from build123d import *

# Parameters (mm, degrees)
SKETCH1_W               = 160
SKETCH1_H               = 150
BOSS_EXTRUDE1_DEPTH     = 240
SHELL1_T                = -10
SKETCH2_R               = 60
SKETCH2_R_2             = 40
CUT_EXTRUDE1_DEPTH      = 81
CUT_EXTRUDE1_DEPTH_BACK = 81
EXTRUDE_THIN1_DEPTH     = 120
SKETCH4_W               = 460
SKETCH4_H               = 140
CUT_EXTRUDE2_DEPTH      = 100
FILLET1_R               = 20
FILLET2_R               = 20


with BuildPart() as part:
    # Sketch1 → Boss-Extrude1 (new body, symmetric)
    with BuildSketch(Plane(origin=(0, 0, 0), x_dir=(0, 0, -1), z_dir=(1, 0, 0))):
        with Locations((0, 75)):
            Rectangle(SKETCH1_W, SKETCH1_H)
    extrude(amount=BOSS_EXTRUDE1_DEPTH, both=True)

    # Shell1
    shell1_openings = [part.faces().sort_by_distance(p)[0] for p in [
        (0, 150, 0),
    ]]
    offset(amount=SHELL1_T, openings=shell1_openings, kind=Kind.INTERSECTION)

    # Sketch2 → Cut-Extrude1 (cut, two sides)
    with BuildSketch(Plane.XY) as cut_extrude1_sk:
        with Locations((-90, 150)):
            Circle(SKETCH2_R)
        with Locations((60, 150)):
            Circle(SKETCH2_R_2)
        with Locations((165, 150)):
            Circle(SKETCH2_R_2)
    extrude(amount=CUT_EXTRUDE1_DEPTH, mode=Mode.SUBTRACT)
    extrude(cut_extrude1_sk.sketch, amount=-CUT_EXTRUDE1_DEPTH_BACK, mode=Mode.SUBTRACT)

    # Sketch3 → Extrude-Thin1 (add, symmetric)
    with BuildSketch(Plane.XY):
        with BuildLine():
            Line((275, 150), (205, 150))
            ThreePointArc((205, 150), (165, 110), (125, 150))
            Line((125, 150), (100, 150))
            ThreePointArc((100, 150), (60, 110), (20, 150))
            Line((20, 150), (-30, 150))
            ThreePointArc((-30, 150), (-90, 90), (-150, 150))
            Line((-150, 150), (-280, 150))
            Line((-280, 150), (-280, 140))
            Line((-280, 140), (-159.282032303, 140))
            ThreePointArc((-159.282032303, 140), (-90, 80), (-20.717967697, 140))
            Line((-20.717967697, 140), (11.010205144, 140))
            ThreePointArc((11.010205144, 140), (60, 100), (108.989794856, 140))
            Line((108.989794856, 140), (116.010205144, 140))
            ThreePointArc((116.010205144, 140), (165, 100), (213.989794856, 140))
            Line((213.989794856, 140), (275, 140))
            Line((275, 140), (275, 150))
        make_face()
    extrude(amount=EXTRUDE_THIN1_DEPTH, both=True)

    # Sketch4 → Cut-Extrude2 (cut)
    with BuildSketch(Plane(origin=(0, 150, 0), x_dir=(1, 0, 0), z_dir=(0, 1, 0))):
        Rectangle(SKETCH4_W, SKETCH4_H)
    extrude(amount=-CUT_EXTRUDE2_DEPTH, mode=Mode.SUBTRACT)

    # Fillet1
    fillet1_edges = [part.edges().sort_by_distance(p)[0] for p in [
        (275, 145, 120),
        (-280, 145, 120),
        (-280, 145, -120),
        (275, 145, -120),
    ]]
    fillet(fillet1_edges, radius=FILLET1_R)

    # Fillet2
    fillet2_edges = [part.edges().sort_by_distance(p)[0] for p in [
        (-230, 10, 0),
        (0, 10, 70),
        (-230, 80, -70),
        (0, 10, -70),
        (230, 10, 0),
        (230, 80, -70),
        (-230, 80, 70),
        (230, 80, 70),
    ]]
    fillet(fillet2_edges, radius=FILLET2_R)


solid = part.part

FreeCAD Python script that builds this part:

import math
import FreeCAD as App
import Part
import Sketcher
from FreeCAD import Vector
Q = App.Units.Quantity


def edges_at(feature, points):
    """Names of the edges that pass closest to the given points."""
    edges = feature.Shape.Edges
    near = lambda p: min(range(len(edges)), key=lambda i: edges[i].distToShape(Part.Vertex(*p))[0])
    return sorted({f"Edge{near(p) + 1}" for p in points})


def faces_at(feature, points):
    """Names of the faces that lie closest to the given points."""
    faces = feature.Shape.Faces
    near = lambda p: min(range(len(faces)), key=lambda i: faces[i].distToShape(Part.Vertex(*p))[0])
    return sorted({f"Face{near(p) + 1}" for p in points})

doc = App.newDocument("Part")
body = doc.addObject("PartDesign::Body", "Body")

# Sketch on YZ plane
sketch1 = body.newObject("Sketcher::SketchObject", "Sketch")
sketch1.AttachmentSupport = (doc.getObject("YZ_Plane"), [""])
sketch1.MapMode = "FlatFace"
sketch1.addGeometry([
    Part.LineSegment(Vector(150, 80, 0), Vector(0, 80, 0)),
    Part.LineSegment(Vector(0, 80, 0), Vector(0, -80, 0)),
    Part.LineSegment(Vector(0, -80, 0), Vector(150, -80, 0)),
    Part.LineSegment(Vector(150, -80, 0), Vector(150, 80, 0)),
], False)
sketch1.addConstraint([
    Sketcher.Constraint("Coincident", 0, 2, 1, 1),
    Sketcher.Constraint("Coincident", 1, 2, 2, 1),
    Sketcher.Constraint("Coincident", 2, 2, 3, 1),
    Sketcher.Constraint("Coincident", 3, 2, 0, 1),
    Sketcher.Constraint("Horizontal", 0),
    Sketcher.Constraint("Vertical", 1),
    Sketcher.Constraint("Horizontal", 2),
    Sketcher.Constraint("Vertical", 3),
    Sketcher.Constraint("Symmetric", 0, 2, 1, 2, -1, 1),
    Sketcher.Constraint("DistanceX", 0, 2, 0, 1, Q("150 mm")),
    Sketcher.Constraint("DistanceY", 1, 2, 1, 1, Q("160 mm")),
])
pad1 = body.newObject("PartDesign::Pad", "Pad")
pad1.Profile = sketch1
pad1.Length = 480
pad1.Midplane = True
doc.recompute()

thickness = body.newObject("PartDesign::Thickness", "Thickness")
thickness.Base = (pad1, faces_at(pad1, [(0, 150, 0)]))
thickness.Value = 10
thickness.Reversed = True
thickness.Join = "Intersection"

# Sketch on XY plane
sketch2 = body.newObject("Sketcher::SketchObject", "Sketch001")
sketch2.AttachmentSupport = (doc.getObject("XY_Plane"), [""])
sketch2.MapMode = "FlatFace"
sketch2.addGeometry([
    Part.Circle(Vector(-90, 150, 0), Vector(0, 0, 1), 60),
    Part.Circle(Vector(60, 150, 0), Vector(0, 0, 1), 40),
    Part.Circle(Vector(165, 150, 0), Vector(0, 0, 1), 40),
], False)
sketch2.addConstraint([
    Sketcher.Constraint("Equal", 1, 2),
    Sketcher.Constraint("Horizontal", 0, 3, 1, 3),
    Sketcher.Constraint("Horizontal", 1, 3, 2, 3),
    Sketcher.Constraint("Diameter", 0, Q("120 mm")),
    Sketcher.Constraint("Diameter", 1, Q("80 mm")),
    Sketcher.Constraint("DistanceX", 0, 3, -1, 1, Q("90 mm")),
    Sketcher.Constraint("DistanceY", -1, 1, 0, 3, Q("150 mm")),
    Sketcher.Constraint("DistanceX", -1, 1, 1, 3, Q("60 mm")),
    Sketcher.Constraint("DistanceX", -1, 1, 2, 3, Q("165 mm")),
])
pocket1 = body.newObject("PartDesign::Pocket", "Pocket")
pocket1.Profile = sketch2
pocket1.Type = "ThroughAll"
pocket1.Midplane = True

# Sketch on XY plane
sketch3 = body.newObject("Sketcher::SketchObject", "Sketch002")
sketch3.AttachmentSupport = (doc.getObject("XY_Plane"), [""])
sketch3.MapMode = "FlatFace"
sketch3.addGeometry([
    Part.LineSegment(Vector(275, 150, 0), Vector(205, 150, 0)),  # 0
    Part.ArcOfCircle(Part.Circle(Vector(165, 150, 0), Vector(0, 0, 1), 40), math.radians(180), math.radians(360)),  # 1
    Part.LineSegment(Vector(125, 150, 0), Vector(100, 150, 0)),  # 2
    Part.ArcOfCircle(Part.Circle(Vector(60, 150, 0), Vector(0, 0, 1), 40), math.radians(180), math.radians(360)),  # 3
    Part.LineSegment(Vector(20, 150, 0), Vector(-30, 150, 0)),  # 4
    Part.ArcOfCircle(Part.Circle(Vector(-90, 150, 0), Vector(0, 0, 1), 60), math.radians(180), math.radians(360)),  # 5
    Part.LineSegment(Vector(-150, 150, 0), Vector(-280, 150, 0)),  # 6
    Part.LineSegment(Vector(-280, 150, 0), Vector(-280, 140, 0)),  # 7
    Part.LineSegment(Vector(-280, 140, 0), Vector(-159.282032, 140, 0)),  # 8
    Part.ArcOfCircle(Part.Circle(Vector(-90, 150, 0), Vector(0, 0, 1), 70), math.radians(-171.786789), math.radians(-8.213211)),  # 9
    Part.LineSegment(Vector(-20.717968, 140, 0), Vector(11.010205, 140, 0)),  # 10
    Part.ArcOfCircle(Part.Circle(Vector(60, 150, 0), Vector(0, 0, 1), 50), math.radians(-168.463041), math.radians(-11.536959)),  # 11
    Part.LineSegment(Vector(108.989795, 140, 0), Vector(116.010205, 140, 0)),  # 12
    Part.ArcOfCircle(Part.Circle(Vector(165, 150, 0), Vector(0, 0, 1), 50), math.radians(-168.463041), math.radians(-11.536959)),  # 13
    Part.LineSegment(Vector(213.989795, 140, 0), Vector(275, 140, 0)),  # 14
    Part.LineSegment(Vector(275, 140, 0), Vector(275, 150, 0)),  # 15
], False)
sketch3.addConstraint([
    Sketcher.Constraint("Coincident", 0, 2, 1, 2),
    Sketcher.Constraint("Coincident", 1, 1, 2, 1),
    Sketcher.Constraint("Coincident", 2, 2, 3, 2),
    Sketcher.Constraint("Coincident", 3, 1, 4, 1),
    Sketcher.Constraint("Coincident", 4, 2, 5, 2),
    Sketcher.Constraint("Coincident", 5, 1, 6, 1),
    Sketcher.Constraint("Coincident", 6, 2, 7, 1),
    Sketcher.Constraint("Coincident", 7, 2, 8, 1),
    Sketcher.Constraint("Coincident", 8, 2, 9, 1),
    Sketcher.Constraint("Coincident", 9, 2, 10, 1),
    Sketcher.Constraint("Coincident", 10, 2, 11, 1),
    Sketcher.Constraint("Coincident", 11, 2, 12, 1),
    Sketcher.Constraint("Coincident", 12, 2, 13, 1),
    Sketcher.Constraint("Coincident", 13, 2, 14, 1),
    Sketcher.Constraint("Coincident", 14, 2, 15, 1),
    Sketcher.Constraint("Coincident", 15, 2, 0, 1),
    Sketcher.Constraint("Horizontal", 0),
    Sketcher.Constraint("Horizontal", 2),
    Sketcher.Constraint("Horizontal", 4),
    Sketcher.Constraint("Horizontal", 6),
    Sketcher.Constraint("Vertical", 7),
    Sketcher.Constraint("Horizontal", 8),
    Sketcher.Constraint("Horizontal", 10),
    Sketcher.Constraint("Horizontal", 12),
    Sketcher.Constraint("Horizontal", 14),
    Sketcher.Constraint("Vertical", 15),
    Sketcher.Constraint("Coincident", 9, 3, 5, 3),
    Sketcher.Constraint("Coincident", 11, 3, 3, 3),
    Sketcher.Constraint("Coincident", 13, 3, 1, 3),
    Sketcher.Constraint("Equal", 1, 3),
    Sketcher.Constraint("Equal", 11, 13),
    Sketcher.Constraint("Horizontal", 1, 3, 3, 3),
    Sketcher.Constraint("Horizontal", 3, 3, 5, 3),
    Sketcher.Constraint("Horizontal", 13, 3, 0, 2),
    Sketcher.Constraint("Horizontal", 0, 2, 1, 1),
    Sketcher.Constraint("Horizontal", 2, 2, 3, 1),
    Sketcher.Constraint("Horizontal", 4, 2, 5, 1),
    Sketcher.Constraint("Horizontal", 8, 2, 9, 2),
    Sketcher.Constraint("Horizontal", 10, 2, 11, 2),
    Sketcher.Constraint("Horizontal", 12, 2, 13, 2),
    Sketcher.Constraint("Radius", 1, Q("40 mm")),
    Sketcher.Constraint("Radius", 5, Q("60 mm")),
    Sketcher.Constraint("Radius", 9, Q("70 mm")),
    Sketcher.Constraint("Radius", 11, Q("50 mm")),
    Sketcher.Constraint("DistanceX", 0, 2, 0, 1, Q("70 mm")),
    Sketcher.Constraint("DistanceX", 2, 2, 2, 1, Q("25 mm")),
    Sketcher.Constraint("DistanceX", 4, 2, 4, 1, Q("50 mm")),
    Sketcher.Constraint("DistanceX", 6, 2, 6, 1, Q("130 mm")),
    Sketcher.Constraint("DistanceY", 7, 2, 7, 1, Q("10 mm")),
    Sketcher.Constraint("DistanceX", -1, 1, 1, 3, Q("165 mm")),
    Sketcher.Constraint("DistanceY", -1, 1, 1, 3, Q("150 mm")),
])
pad2 = body.newObject("PartDesign::Pad", "Pad001")
pad2.Profile = sketch3
pad2.Length = 240
pad2.Midplane = True

# Sketch on XZ plane
sketch4 = body.newObject("Sketcher::SketchObject", "Sketch003")
sketch4.AttachmentSupport = (doc.getObject("XZ_Plane"), [""])
sketch4.MapMode = "FlatFace"
sketch4.AttachmentOffset = App.Placement(Vector(0, 0, -150), App.Rotation())
sketch4.addGeometry([
    Part.LineSegment(Vector(-230, -70, 0), Vector(-230, 70, 0)),
    Part.LineSegment(Vector(-230, 70, 0), Vector(230, 70, 0)),
    Part.LineSegment(Vector(230, 70, 0), Vector(230, -70, 0)),
    Part.LineSegment(Vector(230, -70, 0), Vector(-230, -70, 0)),
], False)
sketch4.addConstraint([
    Sketcher.Constraint("Coincident", 0, 2, 1, 1),
    Sketcher.Constraint("Coincident", 1, 2, 2, 1),
    Sketcher.Constraint("Coincident", 2, 2, 3, 1),
    Sketcher.Constraint("Coincident", 3, 2, 0, 1),
    Sketcher.Constraint("Vertical", 0),
    Sketcher.Constraint("Horizontal", 1),
    Sketcher.Constraint("Vertical", 2),
    Sketcher.Constraint("Horizontal", 3),
    Sketcher.Constraint("Symmetric", 0, 2, 2, 2, -1, 1),
    Sketcher.Constraint("DistanceX", 1, 1, 1, 2, Q("460 mm")),
    Sketcher.Constraint("DistanceY", 0, 1, 0, 2, Q("140 mm")),
])
pocket2 = body.newObject("PartDesign::Pocket", "Pocket001")
pocket2.Profile = sketch4
pocket2.Length = 100
pocket2.Reversed = True
doc.recompute()

fillet = body.newObject("PartDesign::Fillet", "Fillet")
fillet.Base = (pocket2, edges_at(pocket2, [
    (275, 145, 120),
    (-280, 145, 120),
    (-280, 145, -120),
    (275, 145, -120),
]))
fillet.Radius = 20
doc.recompute()

fillet2 = body.newObject("PartDesign::Fillet", "Fillet001")
fillet2.Base = (fillet, edges_at(fillet, [
    (-230, 10, 0),
    (0, 10, 70),
    (-230, 95, -70),
    (0, 10, -70),
    (230, 10, 0),
    (230, 95, -70),
    (-230, 95, 70),
    (230, 95, 70),
]))
fillet2.Radius = 20

doc.recompute()
